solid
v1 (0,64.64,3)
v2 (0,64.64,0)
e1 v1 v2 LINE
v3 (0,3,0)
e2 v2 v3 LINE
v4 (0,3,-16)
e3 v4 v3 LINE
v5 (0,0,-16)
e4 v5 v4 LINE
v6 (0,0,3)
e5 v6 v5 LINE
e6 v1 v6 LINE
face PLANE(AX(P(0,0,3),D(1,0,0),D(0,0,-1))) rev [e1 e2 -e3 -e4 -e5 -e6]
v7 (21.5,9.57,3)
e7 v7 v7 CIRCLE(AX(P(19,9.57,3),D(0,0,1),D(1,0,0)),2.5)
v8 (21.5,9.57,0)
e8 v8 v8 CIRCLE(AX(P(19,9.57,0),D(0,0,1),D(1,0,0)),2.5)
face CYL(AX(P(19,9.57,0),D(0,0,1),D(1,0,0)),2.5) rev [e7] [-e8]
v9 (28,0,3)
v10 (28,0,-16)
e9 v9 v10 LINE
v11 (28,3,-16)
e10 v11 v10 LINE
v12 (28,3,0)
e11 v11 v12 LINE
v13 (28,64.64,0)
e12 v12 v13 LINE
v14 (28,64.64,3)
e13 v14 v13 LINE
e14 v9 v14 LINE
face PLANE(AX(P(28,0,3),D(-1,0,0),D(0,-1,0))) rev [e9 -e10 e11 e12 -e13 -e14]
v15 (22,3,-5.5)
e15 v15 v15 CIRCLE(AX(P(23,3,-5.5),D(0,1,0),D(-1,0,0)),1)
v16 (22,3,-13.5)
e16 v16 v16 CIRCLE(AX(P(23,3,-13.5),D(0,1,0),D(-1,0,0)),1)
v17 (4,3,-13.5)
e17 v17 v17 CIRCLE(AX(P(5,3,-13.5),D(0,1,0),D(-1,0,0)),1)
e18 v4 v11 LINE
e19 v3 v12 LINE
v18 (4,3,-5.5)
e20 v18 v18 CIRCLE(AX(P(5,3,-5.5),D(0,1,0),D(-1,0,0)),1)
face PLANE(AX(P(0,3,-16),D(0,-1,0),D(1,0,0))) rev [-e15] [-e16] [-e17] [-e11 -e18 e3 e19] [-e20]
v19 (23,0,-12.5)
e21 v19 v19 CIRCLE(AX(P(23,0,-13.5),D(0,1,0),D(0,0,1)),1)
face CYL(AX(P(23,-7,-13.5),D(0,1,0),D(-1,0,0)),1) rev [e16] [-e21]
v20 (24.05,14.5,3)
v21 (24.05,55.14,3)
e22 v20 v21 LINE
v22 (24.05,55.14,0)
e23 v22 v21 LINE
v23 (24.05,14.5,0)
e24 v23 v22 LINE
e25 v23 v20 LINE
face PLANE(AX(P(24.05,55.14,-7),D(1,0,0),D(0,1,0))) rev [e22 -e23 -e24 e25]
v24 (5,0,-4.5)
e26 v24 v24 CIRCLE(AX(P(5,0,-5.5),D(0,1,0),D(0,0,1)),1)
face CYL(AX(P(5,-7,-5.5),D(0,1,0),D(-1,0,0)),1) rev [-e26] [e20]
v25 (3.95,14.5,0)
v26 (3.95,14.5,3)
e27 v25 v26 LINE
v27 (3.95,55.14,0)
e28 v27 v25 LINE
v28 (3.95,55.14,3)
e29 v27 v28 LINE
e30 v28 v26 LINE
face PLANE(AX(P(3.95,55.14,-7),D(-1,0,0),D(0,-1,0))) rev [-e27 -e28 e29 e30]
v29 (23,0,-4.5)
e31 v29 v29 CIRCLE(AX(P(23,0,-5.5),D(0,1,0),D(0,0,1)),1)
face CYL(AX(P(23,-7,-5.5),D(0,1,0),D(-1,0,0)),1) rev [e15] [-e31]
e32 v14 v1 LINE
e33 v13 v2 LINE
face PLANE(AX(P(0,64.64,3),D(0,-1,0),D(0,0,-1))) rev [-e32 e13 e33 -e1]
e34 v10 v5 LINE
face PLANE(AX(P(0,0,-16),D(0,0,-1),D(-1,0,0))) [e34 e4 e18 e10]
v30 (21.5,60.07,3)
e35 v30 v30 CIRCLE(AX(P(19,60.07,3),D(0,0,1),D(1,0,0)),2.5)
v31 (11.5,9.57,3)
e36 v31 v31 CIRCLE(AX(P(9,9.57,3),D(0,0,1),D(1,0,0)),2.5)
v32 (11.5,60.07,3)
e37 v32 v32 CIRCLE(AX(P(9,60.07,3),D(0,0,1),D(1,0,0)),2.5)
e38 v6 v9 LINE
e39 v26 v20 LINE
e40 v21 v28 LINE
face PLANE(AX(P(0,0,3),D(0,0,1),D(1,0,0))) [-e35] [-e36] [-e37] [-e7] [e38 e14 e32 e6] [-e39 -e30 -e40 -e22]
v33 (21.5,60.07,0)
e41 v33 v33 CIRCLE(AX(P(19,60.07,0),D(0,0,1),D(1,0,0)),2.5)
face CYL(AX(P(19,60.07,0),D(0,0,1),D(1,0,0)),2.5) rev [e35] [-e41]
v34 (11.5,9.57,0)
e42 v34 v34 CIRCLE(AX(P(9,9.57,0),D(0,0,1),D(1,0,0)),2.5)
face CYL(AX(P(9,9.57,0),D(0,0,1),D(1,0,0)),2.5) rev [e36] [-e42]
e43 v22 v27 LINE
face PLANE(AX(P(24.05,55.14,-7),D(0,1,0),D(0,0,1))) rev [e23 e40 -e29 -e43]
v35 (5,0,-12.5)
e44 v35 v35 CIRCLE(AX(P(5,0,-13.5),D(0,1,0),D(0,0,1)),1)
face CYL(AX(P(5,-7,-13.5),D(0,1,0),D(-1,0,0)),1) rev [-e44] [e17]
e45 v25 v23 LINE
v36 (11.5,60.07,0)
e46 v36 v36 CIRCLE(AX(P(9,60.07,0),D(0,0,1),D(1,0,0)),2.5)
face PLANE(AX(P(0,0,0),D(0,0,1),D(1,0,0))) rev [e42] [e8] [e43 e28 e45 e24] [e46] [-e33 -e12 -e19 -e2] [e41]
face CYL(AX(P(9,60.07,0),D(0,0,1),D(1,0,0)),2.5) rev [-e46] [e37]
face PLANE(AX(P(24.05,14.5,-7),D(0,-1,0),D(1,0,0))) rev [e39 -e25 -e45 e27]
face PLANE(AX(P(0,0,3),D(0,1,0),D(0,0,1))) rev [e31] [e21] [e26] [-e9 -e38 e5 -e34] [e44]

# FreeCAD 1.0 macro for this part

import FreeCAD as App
import Part
import Sketcher

V = App.Vector

doc = App.newDocument("Part")
body = doc.addObject("PartDesign::Body", "Body")

sketch1 = body.newObject("Sketcher::SketchObject", "Sketch")
sketch1.AttachmentSupport = (doc.getObject("XY_Plane"), [""])
sketch1.MapMode = "FlatFace"
sketch1.addGeometry([
    Part.LineSegment(V(0, 65, 0), V(0, 0, 0)),
    Part.LineSegment(V(0, 0, 0), V(28, 0, 0)),
    Part.LineSegment(V(28, 0, 0), V(28, 65, 0)),
    Part.LineSegment(V(28, 65, 0), V(0, 65, 0)),
], False)
sketch1.addConstraint([
    Sketcher.Constraint("Coincident", 0, 2, 1, 1),
    Sketcher.Constraint("Coincident", 1, 2, 2, 1),
    Sketcher.Constraint("Coincident", 2, 2, 3, 1),
    Sketcher.Constraint("Coincident", 3, 2, 0, 1),
    Sketcher.Constraint("Vertical", 0),
    Sketcher.Constraint("Horizontal", 1),
    Sketcher.Constraint("Vertical", 2),
    Sketcher.Constraint("Horizontal", 3),
    Sketcher.Constraint("Coincident", 0, 2, -1, 1),
    Sketcher.Constraint("DistanceX", 1, 1, 1, 2, 28.0),
    Sketcher.Constraint("DistanceY", 0, 2, 0, 1, 64.64),
])
pad1 = body.newObject("PartDesign::Pad", "Pad")
pad1.Profile = sketch1
pad1.Length = 3

sketch2 = body.newObject("Sketcher::SketchObject", "Sketch001")
sketch2.AttachmentSupport = (doc.getObject("XY_Plane"), [""])
sketch2.MapMode = "FlatFace"
sketch2.AttachmentOffset = App.Placement(V(0, 0, 3), App.Rotation())
sketch2.addGeometry([
    Part.Circle(V(9, 9.6, 0), V(0, 0, 1), 2.5),
    Part.Circle(V(19, 9.6, 0), V(0, 0, 1), 2.5),
    Part.Circle(V(9, 60.1, 0), V(0, 0, 1), 2.5),
    Part.Circle(V(19, 60.1, 0), V(0, 0, 1), 2.5),
], False)
sketch2.addConstraint([
    Sketcher.Constraint("Equal", 0, 1),
    Sketcher.Constraint("Equal", 1, 2),
    Sketcher.Constraint("Equal", 2, 3),
    Sketcher.Constraint("Horizontal", 0, 3, 1, 3),
    Sketcher.Constraint("Horizontal", 2, 3, 3, 3),
    Sketcher.Constraint("Vertical", 0, 3, 2, 3),
    Sketcher.Constraint("Vertical", 1, 3, 3, 3),
    Sketcher.Constraint("Diameter", 0, 5.0),
    Sketcher.Constraint("DistanceX", -1, 1, 0, 3, 9.0),
    Sketcher.Constraint("DistanceX", -1, 1, 1, 3, 19.0),
    Sketcher.Constraint("DistanceY", 0, 3, 2, 3, 50.5),
    Sketcher.Constraint("DistanceY", -1, 1, 0, 3, 9.57),
])
pocket1 = body.newObject("PartDesign::Pocket", "Pocket")
pocket1.Profile = sketch2
pocket1.Type = "ThroughAll"

sketch3 = body.newObject("Sketcher::SketchObject", "Sketch002")
sketch3.AttachmentSupport = (doc.getObject("XY_Plane"), [""])
sketch3.MapMode = "FlatFace"
sketch3.AttachmentOffset = App.Placement(V(0, 0, 3), App.Rotation())
sketch3.addGeometry([
    Part.LineSegment(V(4, 55, 0), V(4, 14, 0)),
    Part.LineSegment(V(4, 14, 0), V(24, 14, 0)),
    Part.LineSegment(V(24, 14, 0), V(24, 55, 0)),
    Part.LineSegment(V(24, 55, 0), V(4, 55, 0)),
], False)
sketch3.addConstraint([
    Sketcher.Constraint("Coincident", 0, 2, 1, 1),
    Sketcher.Constraint("Coincident", 1, 2, 2, 1),
    Sketcher.Constraint("Coincident", 2, 2, 3, 1),
    Sketcher.Constraint("Coincident", 3, 2, 0, 1),
    Sketcher.Constraint("Vertical", 0),
    Sketcher.Constraint("Horizontal", 1),
    Sketcher.Constraint("Vertical", 2),
    Sketcher.Constraint("Horizontal", 3),
    Sketcher.Constraint("DistanceX", 1, 1, 1, 2, 20.1),
    Sketcher.Constraint("DistanceY", 0, 2, 0, 1, 40.64),
    Sketcher.Constraint("DistanceY", -1, 1, 0, 2, 14.5),
    Sketcher.Constraint("DistanceX", -1, 1, 0, 2, 3.95),
])
pocket2 = body.newObject("PartDesign::Pocket", "Pocket001")
pocket2.Profile = sketch3
pocket2.Length = 10

sketch4 = body.newObject("Sketcher::SketchObject", "Sketch003")
sketch4.AttachmentSupport = (doc.getObject("XY_Plane"), [""])
sketch4.MapMode = "FlatFace"
sketch4.addGeometry([
    Part.LineSegment(V(28, 3, 0), V(28, 0, 0)),
    Part.LineSegment(V(28, 0, 0), V(0, 0, 0)),
    Part.LineSegment(V(0, 0, 0), V(0, 3, 0)),
    Part.LineSegment(V(0, 3, 0), V(28, 3, 0)),
], False)
sketch4.addConstraint([
    Sketcher.Constraint("Coincident", 0, 2, 1, 1),
    Sketcher.Constraint("Coincident", 1, 2, 2, 1),
    Sketcher.Constraint("Coincident", 2, 2, 3, 1),
    Sketcher.Constraint("Coincident", 3, 2, 0, 1),
    Sketcher.Constraint("Vertical", 0),
    Sketcher.Constraint("Horizontal", 1),
    Sketcher.Constraint("Vertical", 2),
    Sketcher.Constraint("Horizontal", 3),
    Sketcher.Constraint("Coincident", 1, 2, -1, 1),
    Sketcher.Constraint("DistanceX", 1, 2, 1, 1, 28.0),
    Sketcher.Constraint("DistanceY", 0, 2, 0, 1, 3.0),
])
pad2 = body.newObject("PartDesign::Pad", "Pad001")
pad2.Profile = sketch4
pad2.Length = 16
pad2.Reversed = True

sketch5 = body.newObject("Sketcher::SketchObject", "Sketch004")
sketch5.AttachmentSupport = (doc.getObject("XZ_Plane"), [""])
sketch5.MapMode = "FlatFace"
sketch5.AttachmentOffset = App.Placement(V(0, 0, -3), App.Rotation())
sketch5.addGeometry([
    Part.Circle(V(5, -5.5, 0), V(0, 0, 1), 1),
    Part.Circle(V(5, -13.5, 0), V(0, 0, 1), 1),
    Part.Circle(V(23, -13.5, 0), V(0, 0, 1), 1),
    Part.Circle(V(23, -5.5, 0), V(0, 0, 1), 1),
], False)
sketch5.addConstraint([
    Sketcher.Constraint("Equal", 0, 1),
    Sketcher.Constraint("Equal", 1, 2),
    Sketcher.Constraint("Equal", 2, 3),
    Sketcher.Constraint("Horizontal", 1, 3, 2, 3),
    Sketcher.Constraint("Horizontal", 0, 3, 3, 3),
    Sketcher.Constraint("Vertical", 0, 3, 1, 3),
    Sketcher.Constraint("Vertical", 2, 3, 3, 3),
    Sketcher.Constraint("Diameter", 0, 2.0),
    Sketcher.Constraint("DistanceX", -1, 1, 0, 3, 5.0),
    Sketcher.Constraint("DistanceX", -1, 1, 2, 3, 23.0),
    Sketcher.Constraint("DistanceY", 1, 3, 0, 3, 8.0),
    Sketcher.Constraint("DistanceY", 0, 3, -1, 1, 5.5),
])
pocket3 = body.newObject("PartDesign::Pocket", "Pocket002")
pocket3.Profile = sketch5
pocket3.Length = 10
pocket3.Reversed = True

doc.recompute()
